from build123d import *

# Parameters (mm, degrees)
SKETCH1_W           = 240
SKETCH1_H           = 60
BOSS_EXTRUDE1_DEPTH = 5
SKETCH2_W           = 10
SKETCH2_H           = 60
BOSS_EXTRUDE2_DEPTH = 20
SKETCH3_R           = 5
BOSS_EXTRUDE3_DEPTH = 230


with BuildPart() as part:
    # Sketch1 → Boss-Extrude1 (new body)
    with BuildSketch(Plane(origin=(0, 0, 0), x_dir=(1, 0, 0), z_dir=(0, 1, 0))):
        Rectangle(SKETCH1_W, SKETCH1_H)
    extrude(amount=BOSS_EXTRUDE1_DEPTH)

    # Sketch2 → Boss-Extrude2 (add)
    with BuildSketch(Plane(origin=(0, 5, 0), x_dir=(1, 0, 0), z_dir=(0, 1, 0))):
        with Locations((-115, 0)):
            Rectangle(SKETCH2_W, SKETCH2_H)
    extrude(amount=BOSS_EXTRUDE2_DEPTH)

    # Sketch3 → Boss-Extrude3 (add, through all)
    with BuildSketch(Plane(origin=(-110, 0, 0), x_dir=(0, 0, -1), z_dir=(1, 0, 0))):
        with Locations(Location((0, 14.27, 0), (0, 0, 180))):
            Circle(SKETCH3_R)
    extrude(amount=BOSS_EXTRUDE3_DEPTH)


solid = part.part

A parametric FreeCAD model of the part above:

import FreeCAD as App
import Part
import Sketcher

V = App.Vector

doc = App.newDocument("Part")
body = doc.addObject("PartDesign::Body", "Body")

sketch1 = body.newObject("Sketcher::SketchObject", "Sketch")
sketch1.AttachmentSupport = (doc.getObject("XZ_Plane"), [""])
sketch1.MapMode = "FlatFace"
sketch1.addGeometry(Part.LineSegment(V(-120, -30, 0), V(-120, 30, 0)), False)
sketch1.addGeometry(Part.LineSegment(V(-120, 30, 0), V(120, 30, 0)), False)
sketch1.addGeometry(Part.LineSegment(V(120, 30, 0), V(120, -30, 0)), False)
sketch1.addGeometry(Part.LineSegment(V(120, -30, 0), V(-120, -30, 0)), False)
sketch1.addConstraint(Sketcher.Constraint("Coincident", 0, 2, 1, 1))
sketch1.addConstraint(Sketcher.Constraint("Coincident", 1, 2, 2, 1))
sketch1.addConstraint(Sketcher.Constraint("Coincident", 2, 2, 3, 1))
sketch1.addConstraint(Sketcher.Constraint("Coincident", 3, 2, 0, 1))
sketch1.addConstraint(Sketcher.Constraint("Vertical", 0))
sketch1.addConstraint(Sketcher.Constraint("Horizontal", 1))
sketch1.addConstraint(Sketcher.Constraint("Vertical", 2))
sketch1.addConstraint(Sketcher.Constraint("Horizontal", 3))
sketch1.addConstraint(Sketcher.Constraint("Symmetric", 0, 2, 2, 2, -1, 1))
sketch1.addConstraint(Sketcher.Constraint("DistanceX", 1, 1, 1, 2, 240.0))
sketch1.addConstraint(Sketcher.Constraint("DistanceY", 0, 1, 0, 2, 60.0))
pad1 = body.newObject("PartDesign::Pad", "Pad")
pad1.Profile = sketch1
pad1.Length = 5
pad1.Reversed = True

sketch2 = body.newObject("Sketcher::SketchObject", "Sketch001")
sketch2.AttachmentSupport = (doc.getObject("XZ_Plane"), [""])
sketch2.MapMode = "FlatFace"
sketch2.AttachmentOffset = App.Placement(V(0, 0, -5), App.Rotation())
sketch2.addGeometry(Part.LineSegment(V(-120, -30, 0), V(-120, 30, 0)), False)
sketch2.addGeometry(Part.LineSegment(V(-120, 30, 0), V(-110, 30, 0)), False)
sketch2.addGeometry(Part.LineSegment(V(-110, 30, 0), V(-110, -30, 0)), False)
sketch2.addGeometry(Part.LineSegment(V(-110, -30, 0), V(-120, -30, 0)), False)
sketch2.addConstraint(Sketcher.Constraint("Coincident", 0, 2, 1, 1))
sketch2.addConstraint(Sketcher.Constraint("Coincident", 1, 2, 2, 1))
sketch2.addConstraint(Sketcher.Constraint("Coincident", 2, 2, 3, 1))
sketch2.addConstraint(Sketcher.Constraint("Coincident", 3, 2, 0, 1))
sketch2.addConstraint(Sketcher.Constraint("Vertical", 0))
sketch2.addConstraint(Sketcher.Constraint("Horizontal", 1))
sketch2.addConstraint(Sketcher.Constraint("Vertical", 2))
sketch2.addConstraint(Sketcher.Constraint("Horizontal", 3))
sketch2.addConstraint(Sketcher.Constraint("DistanceX", 1, 1, 1, 2, 10.0))
sketch2.addConstraint(Sketcher.Constraint("DistanceY", 0, 1, 0, 2, 60.0))
sketch2.addConstraint(Sketcher.Constraint("DistanceX", 0, 2, -1, 1, 120.0))
sketch2.addConstraint(Sketcher.Constraint("DistanceY", -1, 1, 0, 2, 30.0))
pad2 = body.newObject("PartDesign::Pad", "Pad001")
pad2.Profile = sketch2
pad2.Length = 20
pad2.Reversed = True

sketch3 = body.newObject("Sketcher::SketchObject", "Sketch002")
sketch3.AttachmentSupport = (doc.getObject("YZ_Plane"), [""])
sketch3.MapMode = "FlatFace"
sketch3.AttachmentOffset = App.Placement(V(0, 0, -110), App.Rotation())
sketch3.addGeometry(Part.Circle(V(14.27, 0, 0), V(0, 0, 1), 5), False)
sketch3.addConstraint(Sketcher.Constraint("PointOnObject", 0, 3, -1))
sketch3.addConstraint(Sketcher.Constraint("Diameter", 0, 10.0))
sketch3.addConstraint(Sketcher.Constraint("DistanceX", -1, 1, 0, 3, 14.27))
pad3 = body.newObject("PartDesign::Pad", "Pad002")
pad3.Profile = sketch3
pad3.Length = 230

doc.recompute()
